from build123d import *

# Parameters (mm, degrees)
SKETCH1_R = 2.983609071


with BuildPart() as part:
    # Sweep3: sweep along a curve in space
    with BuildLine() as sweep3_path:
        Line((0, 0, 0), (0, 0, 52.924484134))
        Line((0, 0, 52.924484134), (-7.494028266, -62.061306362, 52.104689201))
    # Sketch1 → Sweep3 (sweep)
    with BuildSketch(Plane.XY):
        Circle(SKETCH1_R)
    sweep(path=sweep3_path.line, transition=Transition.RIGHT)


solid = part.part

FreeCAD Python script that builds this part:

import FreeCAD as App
import Part
import Sketcher

V = App.Vector

doc = App.newDocument("Part")
body = doc.addObject("PartDesign::Body", "Body")

sketch1 = doc.addObject("Sketcher::SketchObject", "Sketch")
body.addObject(sketch1)
sketch1.AttachmentSupport = (doc.XY_Plane, [""])
sketch1.MapMode = "FlatFace"
sketch1.addGeometry(Part.Circle(V(0, 0, 0), V(0, 0, 1), 2.983609), False)
sketch1.addConstraint(Sketcher.Constraint("Coincident", 0, 3, -1, 1))
sketch1.addConstraint(Sketcher.Constraint("Diameter", 0, 5.967218))

sketch2 = doc.addObject("Sketcher::SketchObject", "Sketch001")
body.addObject(sketch2)
sketch2.Placement = App.Placement(V(0, 0, 0), App.Rotation(V(-0.119881189, -0.992788246, 0), V(0, 0, 1.000000001), V(-0.992788246, 0.119881189, 0), "ZXY"))
sketch2.addGeometry(Part.LineSegment(V(0, 0, 0), V(0, 52.924484, 0)), False)
sketch2.addGeometry(Part.LineSegment(V(0, 52.924484, 0), V(62.512129, 52.104689, 0)), False)
sketch2.addConstraint(Sketcher.Constraint("Coincident", 0, 2, 1, 1))
sketch2.addConstraint(Sketcher.Constraint("Vertical", 0))
sketch2.addConstraint(Sketcher.Constraint("Coincident", 0, 1, -1, 1))
sketch2.addConstraint(Sketcher.Constraint("DistanceY", 0, 1, 0, 2, 52.924484))
sketch2.addConstraint(Sketcher.Constraint("DistanceX", -1, 1, 1, 2, 62.512129))
sketch2.addConstraint(Sketcher.Constraint("DistanceY", -1, 1, 1, 2, 52.104689))
doc.recompute()

additivepipe = doc.addObject("PartDesign::AdditivePipe", "AdditivePipe")
body.addObject(additivepipe)
additivepipe.Profile = sketch1
additivepipe.Spine = (sketch2, ["Edge1", "Edge2"])
additivepipe.Transition = "Right corner"

doc.recompute()
